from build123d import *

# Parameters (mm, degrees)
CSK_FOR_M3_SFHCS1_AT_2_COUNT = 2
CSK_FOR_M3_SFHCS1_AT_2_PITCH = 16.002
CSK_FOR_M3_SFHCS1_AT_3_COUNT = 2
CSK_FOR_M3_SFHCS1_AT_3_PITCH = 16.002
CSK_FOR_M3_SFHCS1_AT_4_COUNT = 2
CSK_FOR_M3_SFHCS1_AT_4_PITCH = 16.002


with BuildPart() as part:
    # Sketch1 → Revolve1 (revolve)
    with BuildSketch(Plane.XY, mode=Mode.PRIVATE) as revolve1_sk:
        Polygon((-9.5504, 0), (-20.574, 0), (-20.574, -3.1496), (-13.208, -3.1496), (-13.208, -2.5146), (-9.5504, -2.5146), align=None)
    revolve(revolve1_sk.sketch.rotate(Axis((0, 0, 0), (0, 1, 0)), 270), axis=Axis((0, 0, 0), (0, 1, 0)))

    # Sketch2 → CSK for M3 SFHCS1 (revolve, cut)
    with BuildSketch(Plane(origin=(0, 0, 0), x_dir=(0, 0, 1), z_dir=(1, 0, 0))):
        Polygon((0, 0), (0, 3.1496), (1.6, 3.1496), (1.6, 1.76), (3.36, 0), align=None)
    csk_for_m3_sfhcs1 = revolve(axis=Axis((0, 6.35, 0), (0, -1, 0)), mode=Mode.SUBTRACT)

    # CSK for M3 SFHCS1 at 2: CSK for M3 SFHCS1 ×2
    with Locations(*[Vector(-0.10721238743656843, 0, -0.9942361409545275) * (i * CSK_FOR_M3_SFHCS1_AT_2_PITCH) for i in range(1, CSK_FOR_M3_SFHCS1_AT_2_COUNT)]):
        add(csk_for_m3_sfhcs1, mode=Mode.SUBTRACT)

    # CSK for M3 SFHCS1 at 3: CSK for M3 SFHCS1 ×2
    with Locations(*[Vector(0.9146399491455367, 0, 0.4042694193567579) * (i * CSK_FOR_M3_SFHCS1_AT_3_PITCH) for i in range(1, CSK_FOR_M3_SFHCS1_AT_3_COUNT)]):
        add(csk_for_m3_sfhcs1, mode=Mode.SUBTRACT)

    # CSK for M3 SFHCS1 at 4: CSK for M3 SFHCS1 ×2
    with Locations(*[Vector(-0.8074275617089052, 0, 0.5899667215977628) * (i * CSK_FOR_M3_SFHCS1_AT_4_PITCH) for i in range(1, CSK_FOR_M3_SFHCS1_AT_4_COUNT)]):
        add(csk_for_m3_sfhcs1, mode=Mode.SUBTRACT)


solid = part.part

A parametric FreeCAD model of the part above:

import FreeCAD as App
import Part
import Sketcher

V = App.Vector
Q = App.Units.Quantity


def add_polygon(sketch, points):
    """Adds a closed chain of lines whose ends are joined by coincident constraints."""
    first, n = sketch.GeometryCount, len(points)
    for a, b in zip(points, points[1:] + points[:1]):
        sketch.addGeometry(Part.LineSegment(App.Vector(*a, 0), App.Vector(*b, 0)), False)
    for i in range(n):
        sketch.addConstraint(Sketcher.Constraint("Coincident", first + i, 2, first + (i + 1) % n, 1))

doc = App.newDocument("Part")
params = doc.addObject("Spreadsheet::Sheet", "Params")
for row, (alias, value) in enumerate([
    ("sketch1_width", "0.29 in"),
    ("sketch1_width2", "0.434 in"),
    ("sketch1_height", "0.124 in"),
    ("sketch1_height2", "0.025 in"),
    ("revolution_angle", "360 deg"),
    ("sketch2_width", "0.124 in"),
    ("groove_angle", "360 deg"),
    ("linearpattern_pitch", "0.63 in"),
    ("linearpattern2_pitch", "0.63 in"),
    ("linearpattern3_pitch", "0.63 in"),
], start=1):
    params.set(f"A{row}", alias)
    params.set(f"B{row}", "=" + value)
    params.setAlias(f"B{row}", alias)

body = doc.addObject("PartDesign::Body", "Body")

# Sketch on XY plane
sketch1 = body.newObject("Sketcher::SketchObject", "Sketch")
sketch1.AttachmentSupport = (doc.getObject("XY_Plane"), [""])
sketch1.MapMode = "FlatFace"
add_polygon(sketch1, [(-9.5504, 0), (-20.574, 0), (-20.574, -3.1496), (-13.208, -3.1496), (-13.208, -2.5146), (-9.5504, -2.5146)])  # lines 0-5
sketch1.addConstraint(Sketcher.Constraint("Horizontal", 0))
sketch1.addConstraint(Sketcher.Constraint("Vertical", 1))
sketch1.addConstraint(Sketcher.Constraint("Horizontal", 2))
sketch1.addConstraint(Sketcher.Constraint("Vertical", 3))
sketch1.addConstraint(Sketcher.Constraint("Horizontal", 4))
sketch1.addConstraint(Sketcher.Constraint("Vertical", 5))
sketch1.addConstraint(Sketcher.Constraint("PointOnObject", 0, 2, -1))
sketch1.addConstraint(Sketcher.Constraint("DistanceX", 2, 1, 2, 2, Q("0.29 in")))
sketch1.addConstraint(Sketcher.Constraint("DistanceX", 0, 2, 0, 1, Q("0.434 in")))
sketch1.addConstraint(Sketcher.Constraint("DistanceY", 1, 2, 1, 1, Q("0.124 in")))
sketch1.addConstraint(Sketcher.Constraint("DistanceY", 3, 1, 3, 2, Q("0.025 in")))
sketch1.addConstraint(Sketcher.Constraint("DistanceX", 0, 2, -1, 1, Q("0.81 in")))
sketch1.setExpression("Constraints[13]", "Params.sketch1_width")
sketch1.setExpression("Constraints[14]", "Params.sketch1_width2")
sketch1.setExpression("Constraints[15]", "Params.sketch1_height")
sketch1.setExpression("Constraints[16]", "Params.sketch1_height2")
revolution = body.newObject("PartDesign::Revolution", "Revolution")
revolution.Profile = sketch1
revolution.ReferenceAxis = (sketch1, ["V_Axis"])
revolution.setExpression("Angle", "Params.revolution_angle")

# Sketch on YZ plane
sketch2 = body.newObject("Sketcher::SketchObject", "Sketch001")
sketch2.AttachmentSupport = (doc.getObject("YZ_Plane"), [""])
sketch2.MapMode = "FlatFace"
add_polygon(sketch2, [(-3.1496, 0), (0, 0), (0, 3.36), (-1.76, 1.6), (-3.1496, 1.6)])  # lines 0-4
sketch2.addConstraint(Sketcher.Constraint("Horizontal", 0))
sketch2.addConstraint(Sketcher.Constraint("Vertical", 1))
sketch2.addConstraint(Sketcher.Constraint("Horizontal", 3))
sketch2.addConstraint(Sketcher.Constraint("Vertical", 4))
sketch2.addConstraint(Sketcher.Constraint("Coincident", 0, 2, -1, 1))
sketch2.addConstraint(Sketcher.Constraint("Angle", 2, Q("-135 deg")))
sketch2.addConstraint(Sketcher.Constraint("DistanceX", 0, 1, 0, 2, Q("0.124 in")))
sketch2.addConstraint(Sketcher.Constraint("DistanceX", 3, 2, 3, 1, 1.3896))
sketch2.addConstraint(Sketcher.Constraint("DistanceY", 1, 1, 1, 2, 3.36))
sketch2.setExpression("Constraints[11]", "Params.sketch2_width")
groove = body.newObject("PartDesign::Groove", "Groove")
groove.Profile = sketch2
groove.ReferenceAxis = (sketch2, ["H_Axis"])
groove.setExpression("Angle", "Params.groove_angle")
doc.recompute()

datumline = body.newObject("PartDesign::Line", "DatumLine")
datumline.Placement = App.Placement(V(0, 0, 0), App.Rotation(V(0, 0, 1), V(-0.107212387, 0, -0.994236141)))
linearpattern = body.newObject("PartDesign::LinearPattern", "LinearPattern")
linearpattern.Originals = [groove]
linearpattern.Direction = (datumline, [""])
linearpattern.Mode = "offset"
linearpattern.setExpression("Offset", "Params.linearpattern_pitch")
linearpattern.Occurrences = 2
body.Tip = linearpattern
doc.recompute()

datumline2 = body.newObject("PartDesign::Line", "DatumLine001")
datumline2.Placement = App.Placement(V(0, 0, 0), App.Rotation(V(0, 0, 1), V(0.914639949, 0, 0.404269419)))
linearpattern2 = body.newObject("PartDesign::LinearPattern", "LinearPattern001")
linearpattern2.Originals = [groove]
linearpattern2.Direction = (datumline2, [""])
linearpattern2.Mode = "offset"
linearpattern2.setExpression("Offset", "Params.linearpattern2_pitch")
linearpattern2.Occurrences = 2
body.Tip = linearpattern2
doc.recompute()

datumline3 = body.newObject("PartDesign::Line", "DatumLine002")
datumline3.Placement = App.Placement(V(0, 0, 0), App.Rotation(V(0, 0, 1), V(-0.807427562, 0, 0.589966722)))
linearpattern3 = body.newObject("PartDesign::LinearPattern", "LinearPattern002")
linearpattern3.Originals = [groove]
linearpattern3.Direction = (datumline3, [""])
linearpattern3.Mode = "offset"
linearpattern3.setExpression("Offset", "Params.linearpattern3_pitch")
linearpattern3.Occurrences = 2
body.Tip = linearpattern3

doc.recompute()
